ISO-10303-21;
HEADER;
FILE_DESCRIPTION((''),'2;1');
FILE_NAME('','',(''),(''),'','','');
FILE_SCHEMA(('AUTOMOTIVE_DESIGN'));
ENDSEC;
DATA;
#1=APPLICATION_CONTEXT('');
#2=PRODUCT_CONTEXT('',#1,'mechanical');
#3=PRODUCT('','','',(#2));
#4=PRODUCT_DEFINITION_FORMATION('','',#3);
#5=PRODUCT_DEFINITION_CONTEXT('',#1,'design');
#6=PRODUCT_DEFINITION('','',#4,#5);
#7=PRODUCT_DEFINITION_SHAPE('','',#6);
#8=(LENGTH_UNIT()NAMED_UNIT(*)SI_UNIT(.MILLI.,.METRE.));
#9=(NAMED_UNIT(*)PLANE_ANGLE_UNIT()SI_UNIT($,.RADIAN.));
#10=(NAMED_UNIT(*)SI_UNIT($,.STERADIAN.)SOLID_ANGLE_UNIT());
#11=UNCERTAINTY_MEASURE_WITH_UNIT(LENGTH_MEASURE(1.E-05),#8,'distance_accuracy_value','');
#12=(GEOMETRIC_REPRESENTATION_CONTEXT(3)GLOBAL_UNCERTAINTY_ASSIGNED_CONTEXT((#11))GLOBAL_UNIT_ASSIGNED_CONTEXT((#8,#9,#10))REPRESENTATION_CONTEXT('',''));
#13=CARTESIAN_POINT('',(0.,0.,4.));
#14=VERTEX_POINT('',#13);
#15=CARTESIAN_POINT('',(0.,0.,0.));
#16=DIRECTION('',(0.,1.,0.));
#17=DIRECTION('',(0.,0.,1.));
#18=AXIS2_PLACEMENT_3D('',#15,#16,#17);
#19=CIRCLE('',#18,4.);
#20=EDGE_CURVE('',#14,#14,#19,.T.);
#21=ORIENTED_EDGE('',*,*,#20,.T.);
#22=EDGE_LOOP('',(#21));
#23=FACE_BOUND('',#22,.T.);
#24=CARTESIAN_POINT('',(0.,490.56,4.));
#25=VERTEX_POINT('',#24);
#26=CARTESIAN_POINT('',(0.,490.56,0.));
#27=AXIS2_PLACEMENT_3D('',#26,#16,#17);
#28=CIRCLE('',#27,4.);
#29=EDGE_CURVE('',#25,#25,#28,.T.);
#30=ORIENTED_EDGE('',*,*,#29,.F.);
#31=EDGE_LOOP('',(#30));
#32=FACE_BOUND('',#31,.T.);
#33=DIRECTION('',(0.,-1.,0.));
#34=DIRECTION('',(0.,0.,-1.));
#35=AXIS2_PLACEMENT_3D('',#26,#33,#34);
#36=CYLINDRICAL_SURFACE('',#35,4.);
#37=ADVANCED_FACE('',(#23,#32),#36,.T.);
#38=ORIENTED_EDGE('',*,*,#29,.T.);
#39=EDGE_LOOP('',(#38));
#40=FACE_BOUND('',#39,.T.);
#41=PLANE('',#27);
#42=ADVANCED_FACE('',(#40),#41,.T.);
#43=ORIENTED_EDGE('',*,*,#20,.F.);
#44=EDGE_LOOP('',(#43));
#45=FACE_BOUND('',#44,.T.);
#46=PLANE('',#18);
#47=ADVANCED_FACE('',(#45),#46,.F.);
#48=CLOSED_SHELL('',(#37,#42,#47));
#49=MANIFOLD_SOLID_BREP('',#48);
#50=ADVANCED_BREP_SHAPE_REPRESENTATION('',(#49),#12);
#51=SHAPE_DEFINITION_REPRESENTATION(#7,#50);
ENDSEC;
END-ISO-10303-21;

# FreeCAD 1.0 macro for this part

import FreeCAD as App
import Part
import Sketcher

V = App.Vector
Q = App.Units.Quantity

doc = App.newDocument("Part")
body = doc.addObject("PartDesign::Body", "Body")

# Sketch on XZ plane
sketch1 = doc.addObject("Sketcher::SketchObject", "Sketch")
body.addObject(sketch1)
sketch1.AttachmentSupport = (doc.XZ_Plane, [""])
sketch1.MapMode = "FlatFace"
sketch1.addGeometry(Part.Circle(V(0, 0, 0), V(0, 0, 1), 4), False)
sketch1.addConstraint(Sketcher.Constraint("Coincident", 0, 3, -1, 1))
sketch1.addConstraint(Sketcher.Constraint("Diameter", 0, Q("8 mm")))
pad1 = doc.addObject("PartDesign::Pad", "Pad")
body.addObject(pad1)
pad1.Profile = sketch1
pad1.Length = 490.56
pad1.Reversed = True

doc.recompute()
